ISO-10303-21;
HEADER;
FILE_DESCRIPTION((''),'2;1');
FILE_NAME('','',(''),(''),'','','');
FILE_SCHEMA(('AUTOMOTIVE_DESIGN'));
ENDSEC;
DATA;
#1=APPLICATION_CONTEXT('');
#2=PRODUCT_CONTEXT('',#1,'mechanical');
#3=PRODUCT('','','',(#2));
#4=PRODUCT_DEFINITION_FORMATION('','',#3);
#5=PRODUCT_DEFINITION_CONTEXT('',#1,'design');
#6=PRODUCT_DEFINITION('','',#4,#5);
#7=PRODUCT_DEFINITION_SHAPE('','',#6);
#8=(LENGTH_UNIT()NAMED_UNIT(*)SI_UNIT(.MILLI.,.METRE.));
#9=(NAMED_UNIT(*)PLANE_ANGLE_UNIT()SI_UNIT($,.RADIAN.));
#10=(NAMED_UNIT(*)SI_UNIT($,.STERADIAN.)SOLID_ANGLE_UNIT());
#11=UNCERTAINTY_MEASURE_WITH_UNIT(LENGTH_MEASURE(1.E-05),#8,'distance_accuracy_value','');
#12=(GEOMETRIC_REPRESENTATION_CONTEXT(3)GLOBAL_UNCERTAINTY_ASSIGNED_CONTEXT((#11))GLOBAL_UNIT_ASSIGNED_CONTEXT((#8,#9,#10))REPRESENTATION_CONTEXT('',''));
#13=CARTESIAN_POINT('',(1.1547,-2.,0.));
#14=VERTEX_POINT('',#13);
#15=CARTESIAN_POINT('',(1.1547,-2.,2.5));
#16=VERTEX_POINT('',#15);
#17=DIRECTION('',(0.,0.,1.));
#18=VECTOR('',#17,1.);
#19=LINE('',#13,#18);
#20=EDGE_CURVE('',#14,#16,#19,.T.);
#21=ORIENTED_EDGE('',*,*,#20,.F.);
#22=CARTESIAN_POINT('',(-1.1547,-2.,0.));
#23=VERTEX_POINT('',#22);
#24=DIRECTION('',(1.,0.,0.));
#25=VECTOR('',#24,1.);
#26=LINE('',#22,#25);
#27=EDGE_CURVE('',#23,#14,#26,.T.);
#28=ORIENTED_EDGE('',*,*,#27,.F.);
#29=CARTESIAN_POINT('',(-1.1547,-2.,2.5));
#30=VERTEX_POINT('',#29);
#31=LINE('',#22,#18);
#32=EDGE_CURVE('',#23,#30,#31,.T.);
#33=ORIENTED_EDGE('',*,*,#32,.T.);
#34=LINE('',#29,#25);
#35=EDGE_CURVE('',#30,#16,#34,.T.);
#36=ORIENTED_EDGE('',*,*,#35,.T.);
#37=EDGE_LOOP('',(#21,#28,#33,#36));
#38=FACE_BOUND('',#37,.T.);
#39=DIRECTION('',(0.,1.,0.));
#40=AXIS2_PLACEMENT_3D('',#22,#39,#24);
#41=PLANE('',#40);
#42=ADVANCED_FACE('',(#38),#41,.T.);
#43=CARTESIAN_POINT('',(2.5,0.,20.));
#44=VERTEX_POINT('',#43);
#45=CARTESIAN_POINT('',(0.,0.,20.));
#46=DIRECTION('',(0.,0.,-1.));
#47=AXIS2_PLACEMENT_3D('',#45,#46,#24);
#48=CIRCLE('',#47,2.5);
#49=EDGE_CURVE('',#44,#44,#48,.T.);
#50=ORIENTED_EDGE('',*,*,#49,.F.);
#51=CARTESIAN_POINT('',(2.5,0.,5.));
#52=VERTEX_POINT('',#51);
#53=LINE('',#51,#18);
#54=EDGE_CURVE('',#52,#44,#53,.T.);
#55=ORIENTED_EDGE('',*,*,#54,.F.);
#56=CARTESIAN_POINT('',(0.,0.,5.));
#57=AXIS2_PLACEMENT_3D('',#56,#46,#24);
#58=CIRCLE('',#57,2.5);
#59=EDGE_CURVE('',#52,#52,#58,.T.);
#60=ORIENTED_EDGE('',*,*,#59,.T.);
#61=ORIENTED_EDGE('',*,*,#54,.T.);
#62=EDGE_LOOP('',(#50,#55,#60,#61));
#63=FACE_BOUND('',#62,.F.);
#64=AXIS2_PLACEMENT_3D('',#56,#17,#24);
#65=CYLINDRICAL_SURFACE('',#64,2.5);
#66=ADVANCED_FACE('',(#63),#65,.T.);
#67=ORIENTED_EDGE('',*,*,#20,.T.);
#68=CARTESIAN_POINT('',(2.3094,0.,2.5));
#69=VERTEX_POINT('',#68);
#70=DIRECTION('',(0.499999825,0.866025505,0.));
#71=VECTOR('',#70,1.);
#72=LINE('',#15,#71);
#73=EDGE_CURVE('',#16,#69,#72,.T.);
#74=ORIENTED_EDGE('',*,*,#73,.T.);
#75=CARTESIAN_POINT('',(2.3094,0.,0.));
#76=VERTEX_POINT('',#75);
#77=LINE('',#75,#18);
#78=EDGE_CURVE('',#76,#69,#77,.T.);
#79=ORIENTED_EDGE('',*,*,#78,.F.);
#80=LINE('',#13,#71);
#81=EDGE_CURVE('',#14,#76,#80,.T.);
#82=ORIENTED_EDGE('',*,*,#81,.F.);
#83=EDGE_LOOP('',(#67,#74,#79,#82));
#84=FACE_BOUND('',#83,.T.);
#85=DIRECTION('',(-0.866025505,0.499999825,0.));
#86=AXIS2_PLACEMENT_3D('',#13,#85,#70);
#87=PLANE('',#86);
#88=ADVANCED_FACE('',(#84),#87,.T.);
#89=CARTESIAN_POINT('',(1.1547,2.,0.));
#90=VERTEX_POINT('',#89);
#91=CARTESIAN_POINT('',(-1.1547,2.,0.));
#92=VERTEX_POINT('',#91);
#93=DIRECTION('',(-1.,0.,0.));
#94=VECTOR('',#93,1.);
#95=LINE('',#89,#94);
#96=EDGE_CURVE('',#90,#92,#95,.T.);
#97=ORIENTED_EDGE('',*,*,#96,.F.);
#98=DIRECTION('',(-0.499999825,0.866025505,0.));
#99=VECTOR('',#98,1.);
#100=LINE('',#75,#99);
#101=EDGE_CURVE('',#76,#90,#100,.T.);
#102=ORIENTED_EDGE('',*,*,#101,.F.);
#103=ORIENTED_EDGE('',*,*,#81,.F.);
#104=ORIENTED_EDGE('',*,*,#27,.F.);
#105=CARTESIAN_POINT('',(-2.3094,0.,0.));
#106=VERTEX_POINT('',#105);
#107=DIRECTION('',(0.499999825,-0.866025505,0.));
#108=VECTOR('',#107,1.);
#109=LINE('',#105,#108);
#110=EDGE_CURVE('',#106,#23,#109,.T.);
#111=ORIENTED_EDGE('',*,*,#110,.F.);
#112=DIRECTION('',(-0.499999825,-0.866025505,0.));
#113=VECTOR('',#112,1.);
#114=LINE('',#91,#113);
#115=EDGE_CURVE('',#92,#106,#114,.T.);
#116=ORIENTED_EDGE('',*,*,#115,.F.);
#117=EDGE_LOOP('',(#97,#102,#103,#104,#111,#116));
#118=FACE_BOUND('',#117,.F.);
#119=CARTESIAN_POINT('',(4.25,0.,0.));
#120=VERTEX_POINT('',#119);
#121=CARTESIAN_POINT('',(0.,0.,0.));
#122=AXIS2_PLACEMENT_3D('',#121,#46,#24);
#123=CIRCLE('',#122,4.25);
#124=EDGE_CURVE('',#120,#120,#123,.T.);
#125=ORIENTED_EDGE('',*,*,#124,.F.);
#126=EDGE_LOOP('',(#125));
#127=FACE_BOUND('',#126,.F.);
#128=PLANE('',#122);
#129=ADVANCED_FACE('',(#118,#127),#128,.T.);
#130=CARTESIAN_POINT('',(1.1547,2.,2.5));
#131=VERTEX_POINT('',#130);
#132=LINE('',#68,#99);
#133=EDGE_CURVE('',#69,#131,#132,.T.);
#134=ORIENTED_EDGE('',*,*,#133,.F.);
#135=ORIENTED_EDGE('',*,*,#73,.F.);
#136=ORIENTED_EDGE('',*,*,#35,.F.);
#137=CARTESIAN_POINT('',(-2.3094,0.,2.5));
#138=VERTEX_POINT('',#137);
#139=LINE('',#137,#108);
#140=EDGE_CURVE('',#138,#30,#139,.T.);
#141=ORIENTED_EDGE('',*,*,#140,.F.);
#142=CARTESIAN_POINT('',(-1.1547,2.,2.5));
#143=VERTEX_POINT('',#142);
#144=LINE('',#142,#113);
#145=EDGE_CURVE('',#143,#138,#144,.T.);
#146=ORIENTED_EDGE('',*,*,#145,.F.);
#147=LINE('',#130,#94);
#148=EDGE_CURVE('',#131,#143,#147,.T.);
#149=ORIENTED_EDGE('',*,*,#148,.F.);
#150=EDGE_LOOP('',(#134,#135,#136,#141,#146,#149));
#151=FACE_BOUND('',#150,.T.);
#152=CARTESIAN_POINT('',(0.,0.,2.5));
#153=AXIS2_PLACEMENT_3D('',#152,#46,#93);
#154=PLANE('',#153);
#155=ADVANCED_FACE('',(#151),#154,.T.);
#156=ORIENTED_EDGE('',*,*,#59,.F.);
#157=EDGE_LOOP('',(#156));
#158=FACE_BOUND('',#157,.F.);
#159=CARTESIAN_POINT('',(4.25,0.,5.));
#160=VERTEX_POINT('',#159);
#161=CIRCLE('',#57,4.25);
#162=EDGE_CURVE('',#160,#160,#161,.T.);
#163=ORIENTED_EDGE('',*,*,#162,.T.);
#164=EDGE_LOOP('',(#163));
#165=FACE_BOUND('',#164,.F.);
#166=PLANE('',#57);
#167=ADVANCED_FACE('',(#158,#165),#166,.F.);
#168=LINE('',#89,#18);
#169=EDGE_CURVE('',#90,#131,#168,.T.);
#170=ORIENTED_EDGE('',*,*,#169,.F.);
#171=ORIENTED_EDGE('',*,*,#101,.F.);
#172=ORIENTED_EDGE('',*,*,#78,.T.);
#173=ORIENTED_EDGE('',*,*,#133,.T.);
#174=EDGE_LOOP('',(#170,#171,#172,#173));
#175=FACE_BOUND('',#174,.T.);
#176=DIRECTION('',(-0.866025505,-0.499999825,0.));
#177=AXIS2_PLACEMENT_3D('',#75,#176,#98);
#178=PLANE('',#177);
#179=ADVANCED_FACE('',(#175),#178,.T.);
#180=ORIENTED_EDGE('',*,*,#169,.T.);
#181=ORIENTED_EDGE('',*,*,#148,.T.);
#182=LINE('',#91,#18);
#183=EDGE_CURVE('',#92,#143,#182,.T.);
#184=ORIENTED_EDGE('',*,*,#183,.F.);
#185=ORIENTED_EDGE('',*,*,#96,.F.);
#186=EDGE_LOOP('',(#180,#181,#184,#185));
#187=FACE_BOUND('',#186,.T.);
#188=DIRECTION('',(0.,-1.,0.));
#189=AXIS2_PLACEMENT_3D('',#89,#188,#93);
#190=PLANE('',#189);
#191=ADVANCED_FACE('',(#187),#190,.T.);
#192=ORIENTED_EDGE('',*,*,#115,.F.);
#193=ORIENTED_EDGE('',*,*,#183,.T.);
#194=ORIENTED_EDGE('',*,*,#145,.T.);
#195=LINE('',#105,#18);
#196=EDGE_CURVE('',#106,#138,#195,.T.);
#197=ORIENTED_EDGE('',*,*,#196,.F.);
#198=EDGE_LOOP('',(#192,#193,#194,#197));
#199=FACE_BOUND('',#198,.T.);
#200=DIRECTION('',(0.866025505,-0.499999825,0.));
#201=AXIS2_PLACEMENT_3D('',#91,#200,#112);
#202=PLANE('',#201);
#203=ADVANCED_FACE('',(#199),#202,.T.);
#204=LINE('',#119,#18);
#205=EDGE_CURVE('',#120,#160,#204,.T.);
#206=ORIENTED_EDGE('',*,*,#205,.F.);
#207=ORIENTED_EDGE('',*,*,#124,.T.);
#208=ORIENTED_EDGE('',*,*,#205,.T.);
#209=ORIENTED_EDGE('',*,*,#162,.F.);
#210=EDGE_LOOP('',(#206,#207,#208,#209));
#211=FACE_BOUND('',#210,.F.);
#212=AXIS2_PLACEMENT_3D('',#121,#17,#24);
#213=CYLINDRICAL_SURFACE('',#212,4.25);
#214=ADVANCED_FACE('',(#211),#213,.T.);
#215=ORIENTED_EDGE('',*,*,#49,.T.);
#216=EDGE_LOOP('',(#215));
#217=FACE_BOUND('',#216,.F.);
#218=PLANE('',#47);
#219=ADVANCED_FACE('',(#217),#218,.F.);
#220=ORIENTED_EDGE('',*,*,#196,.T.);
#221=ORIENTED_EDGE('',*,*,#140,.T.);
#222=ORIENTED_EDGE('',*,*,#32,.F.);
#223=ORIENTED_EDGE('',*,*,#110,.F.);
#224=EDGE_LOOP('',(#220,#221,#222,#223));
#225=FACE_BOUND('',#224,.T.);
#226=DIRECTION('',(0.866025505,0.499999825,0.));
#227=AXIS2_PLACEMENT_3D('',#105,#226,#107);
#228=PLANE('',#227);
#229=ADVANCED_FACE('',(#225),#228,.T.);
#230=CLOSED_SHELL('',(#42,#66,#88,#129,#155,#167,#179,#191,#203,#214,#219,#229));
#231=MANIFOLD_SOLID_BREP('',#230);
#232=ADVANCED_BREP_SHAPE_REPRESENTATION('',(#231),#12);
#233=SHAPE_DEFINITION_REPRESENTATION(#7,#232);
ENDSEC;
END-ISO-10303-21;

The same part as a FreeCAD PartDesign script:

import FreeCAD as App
import Part
import Sketcher
Q = App.Units.Quantity

doc = App.newDocument("Part")
body = doc.addObject("PartDesign::Body", "Body")

sketch1 = body.newObject("Sketcher::SketchObject", "Sketch")
sketch1.AttachmentSupport = (doc.getObject("XZ_Plane"), [""])
sketch1.MapMode = "FlatFace"
sketch1.addGeometry([
    Part.LineSegment(App.Vector(4.2, 0, 0), App.Vector(0, 0, 0)),
    Part.LineSegment(App.Vector(0, 0, 0), App.Vector(0, 20, 0)),
    Part.LineSegment(App.Vector(0, 20, 0), App.Vector(2.5, 20, 0)),
    Part.LineSegment(App.Vector(2.5, 20, 0), App.Vector(2.5, 5, 0)),
    Part.LineSegment(App.Vector(2.5, 5, 0), App.Vector(4.2, 5, 0)),
    Part.LineSegment(App.Vector(4.2, 5, 0), App.Vector(4.2, 0, 0)),
], False)
sketch1.addConstraint([
    Sketcher.Constraint("Coincident", 0, 2, 1, 1),
    Sketcher.Constraint("Coincident", 1, 2, 2, 1),
    Sketcher.Constraint("Coincident", 2, 2, 3, 1),
    Sketcher.Constraint("Coincident", 3, 2, 4, 1),
    Sketcher.Constraint("Coincident", 4, 2, 5, 1),
    Sketcher.Constraint("Coincident", 5, 2, 0, 1),
    Sketcher.Constraint("Horizontal", 0),
    Sketcher.Constraint("Vertical", 1),
    Sketcher.Constraint("Horizontal", 2),
    Sketcher.Constraint("Vertical", 3),
    Sketcher.Constraint("Horizontal", 4),
    Sketcher.Constraint("Vertical", 5),
    Sketcher.Constraint("Coincident", 0, 2, -1, 1),
    Sketcher.Constraint("DistanceY", 3, 2, 3, 1, Q("15 mm")),
    Sketcher.Constraint("DistanceY", 5, 2, 5, 1, Q("5 mm")),
    Sketcher.Constraint("DistanceX", 2, 1, 2, 2, Q("2.5 mm")),
    Sketcher.Constraint("DistanceX", 0, 2, 0, 1, Q("4.25 mm")),
])
revolution = body.newObject("PartDesign::Revolution", "Revolution")
revolution.Profile = sketch1
revolution.ReferenceAxis = (sketch1, ["V_Axis"])
revolution.Angle = 360

sketch2 = body.newObject("Sketcher::SketchObject", "Sketch001")
sketch2.AttachmentSupport = (doc.getObject("XY_Plane"), [""])
sketch2.MapMode = "FlatFace"
sketch2.addGeometry([
    Part.LineSegment(App.Vector(-2.3, 0, 0), App.Vector(-1.2, 2, 0)),
    Part.LineSegment(App.Vector(-1.2, 2, 0), App.Vector(1.2, 2, 0)),
    Part.LineSegment(App.Vector(1.2, 2, 0), App.Vector(2.3, 0, 0)),
    Part.LineSegment(App.Vector(2.3, 0, 0), App.Vector(1.2, -2, 0)),
    Part.LineSegment(App.Vector(1.2, -2, 0), App.Vector(-1.2, -2, 0)),
    Part.LineSegment(App.Vector(-1.2, -2, 0), App.Vector(-2.3, 0, 0)),
], False)
sketch2.addConstraint([
    Sketcher.Constraint("Coincident", 0, 2, 1, 1),
    Sketcher.Constraint("Coincident", 1, 2, 2, 1),
    Sketcher.Constraint("Coincident", 2, 2, 3, 1),
    Sketcher.Constraint("Coincident", 3, 2, 4, 1),
    Sketcher.Constraint("Coincident", 4, 2, 5, 1),
    Sketcher.Constraint("Coincident", 5, 2, 0, 1),
    Sketcher.Constraint("Horizontal", 1),
    Sketcher.Constraint("Horizontal", 4),
    Sketcher.Constraint("Symmetric", 0, 2, 3, 2, -1, 1),
    Sketcher.Constraint("Symmetric", 2, 2, 5, 2, -1, 1),
    Sketcher.Constraint("PointOnObject", 2, 2, -1),
    Sketcher.Constraint("Parallel", 2, 5),
    Sketcher.Constraint("Vertical", 1, 2, 3, 2),
    Sketcher.Constraint("DistanceY", 3, 2, 1, 2, Q("4 mm")),
    Sketcher.Constraint("Angle", 0, Q("60 deg")),
    Sketcher.Constraint("DistanceX", 1, 1, 1, 2, Q("2.3094 mm")),
])
pocket1 = body.newObject("PartDesign::Pocket", "Pocket")
pocket1.Profile = sketch2
pocket1.Length = 2.5
pocket1.Reversed = True

doc.recompute()
